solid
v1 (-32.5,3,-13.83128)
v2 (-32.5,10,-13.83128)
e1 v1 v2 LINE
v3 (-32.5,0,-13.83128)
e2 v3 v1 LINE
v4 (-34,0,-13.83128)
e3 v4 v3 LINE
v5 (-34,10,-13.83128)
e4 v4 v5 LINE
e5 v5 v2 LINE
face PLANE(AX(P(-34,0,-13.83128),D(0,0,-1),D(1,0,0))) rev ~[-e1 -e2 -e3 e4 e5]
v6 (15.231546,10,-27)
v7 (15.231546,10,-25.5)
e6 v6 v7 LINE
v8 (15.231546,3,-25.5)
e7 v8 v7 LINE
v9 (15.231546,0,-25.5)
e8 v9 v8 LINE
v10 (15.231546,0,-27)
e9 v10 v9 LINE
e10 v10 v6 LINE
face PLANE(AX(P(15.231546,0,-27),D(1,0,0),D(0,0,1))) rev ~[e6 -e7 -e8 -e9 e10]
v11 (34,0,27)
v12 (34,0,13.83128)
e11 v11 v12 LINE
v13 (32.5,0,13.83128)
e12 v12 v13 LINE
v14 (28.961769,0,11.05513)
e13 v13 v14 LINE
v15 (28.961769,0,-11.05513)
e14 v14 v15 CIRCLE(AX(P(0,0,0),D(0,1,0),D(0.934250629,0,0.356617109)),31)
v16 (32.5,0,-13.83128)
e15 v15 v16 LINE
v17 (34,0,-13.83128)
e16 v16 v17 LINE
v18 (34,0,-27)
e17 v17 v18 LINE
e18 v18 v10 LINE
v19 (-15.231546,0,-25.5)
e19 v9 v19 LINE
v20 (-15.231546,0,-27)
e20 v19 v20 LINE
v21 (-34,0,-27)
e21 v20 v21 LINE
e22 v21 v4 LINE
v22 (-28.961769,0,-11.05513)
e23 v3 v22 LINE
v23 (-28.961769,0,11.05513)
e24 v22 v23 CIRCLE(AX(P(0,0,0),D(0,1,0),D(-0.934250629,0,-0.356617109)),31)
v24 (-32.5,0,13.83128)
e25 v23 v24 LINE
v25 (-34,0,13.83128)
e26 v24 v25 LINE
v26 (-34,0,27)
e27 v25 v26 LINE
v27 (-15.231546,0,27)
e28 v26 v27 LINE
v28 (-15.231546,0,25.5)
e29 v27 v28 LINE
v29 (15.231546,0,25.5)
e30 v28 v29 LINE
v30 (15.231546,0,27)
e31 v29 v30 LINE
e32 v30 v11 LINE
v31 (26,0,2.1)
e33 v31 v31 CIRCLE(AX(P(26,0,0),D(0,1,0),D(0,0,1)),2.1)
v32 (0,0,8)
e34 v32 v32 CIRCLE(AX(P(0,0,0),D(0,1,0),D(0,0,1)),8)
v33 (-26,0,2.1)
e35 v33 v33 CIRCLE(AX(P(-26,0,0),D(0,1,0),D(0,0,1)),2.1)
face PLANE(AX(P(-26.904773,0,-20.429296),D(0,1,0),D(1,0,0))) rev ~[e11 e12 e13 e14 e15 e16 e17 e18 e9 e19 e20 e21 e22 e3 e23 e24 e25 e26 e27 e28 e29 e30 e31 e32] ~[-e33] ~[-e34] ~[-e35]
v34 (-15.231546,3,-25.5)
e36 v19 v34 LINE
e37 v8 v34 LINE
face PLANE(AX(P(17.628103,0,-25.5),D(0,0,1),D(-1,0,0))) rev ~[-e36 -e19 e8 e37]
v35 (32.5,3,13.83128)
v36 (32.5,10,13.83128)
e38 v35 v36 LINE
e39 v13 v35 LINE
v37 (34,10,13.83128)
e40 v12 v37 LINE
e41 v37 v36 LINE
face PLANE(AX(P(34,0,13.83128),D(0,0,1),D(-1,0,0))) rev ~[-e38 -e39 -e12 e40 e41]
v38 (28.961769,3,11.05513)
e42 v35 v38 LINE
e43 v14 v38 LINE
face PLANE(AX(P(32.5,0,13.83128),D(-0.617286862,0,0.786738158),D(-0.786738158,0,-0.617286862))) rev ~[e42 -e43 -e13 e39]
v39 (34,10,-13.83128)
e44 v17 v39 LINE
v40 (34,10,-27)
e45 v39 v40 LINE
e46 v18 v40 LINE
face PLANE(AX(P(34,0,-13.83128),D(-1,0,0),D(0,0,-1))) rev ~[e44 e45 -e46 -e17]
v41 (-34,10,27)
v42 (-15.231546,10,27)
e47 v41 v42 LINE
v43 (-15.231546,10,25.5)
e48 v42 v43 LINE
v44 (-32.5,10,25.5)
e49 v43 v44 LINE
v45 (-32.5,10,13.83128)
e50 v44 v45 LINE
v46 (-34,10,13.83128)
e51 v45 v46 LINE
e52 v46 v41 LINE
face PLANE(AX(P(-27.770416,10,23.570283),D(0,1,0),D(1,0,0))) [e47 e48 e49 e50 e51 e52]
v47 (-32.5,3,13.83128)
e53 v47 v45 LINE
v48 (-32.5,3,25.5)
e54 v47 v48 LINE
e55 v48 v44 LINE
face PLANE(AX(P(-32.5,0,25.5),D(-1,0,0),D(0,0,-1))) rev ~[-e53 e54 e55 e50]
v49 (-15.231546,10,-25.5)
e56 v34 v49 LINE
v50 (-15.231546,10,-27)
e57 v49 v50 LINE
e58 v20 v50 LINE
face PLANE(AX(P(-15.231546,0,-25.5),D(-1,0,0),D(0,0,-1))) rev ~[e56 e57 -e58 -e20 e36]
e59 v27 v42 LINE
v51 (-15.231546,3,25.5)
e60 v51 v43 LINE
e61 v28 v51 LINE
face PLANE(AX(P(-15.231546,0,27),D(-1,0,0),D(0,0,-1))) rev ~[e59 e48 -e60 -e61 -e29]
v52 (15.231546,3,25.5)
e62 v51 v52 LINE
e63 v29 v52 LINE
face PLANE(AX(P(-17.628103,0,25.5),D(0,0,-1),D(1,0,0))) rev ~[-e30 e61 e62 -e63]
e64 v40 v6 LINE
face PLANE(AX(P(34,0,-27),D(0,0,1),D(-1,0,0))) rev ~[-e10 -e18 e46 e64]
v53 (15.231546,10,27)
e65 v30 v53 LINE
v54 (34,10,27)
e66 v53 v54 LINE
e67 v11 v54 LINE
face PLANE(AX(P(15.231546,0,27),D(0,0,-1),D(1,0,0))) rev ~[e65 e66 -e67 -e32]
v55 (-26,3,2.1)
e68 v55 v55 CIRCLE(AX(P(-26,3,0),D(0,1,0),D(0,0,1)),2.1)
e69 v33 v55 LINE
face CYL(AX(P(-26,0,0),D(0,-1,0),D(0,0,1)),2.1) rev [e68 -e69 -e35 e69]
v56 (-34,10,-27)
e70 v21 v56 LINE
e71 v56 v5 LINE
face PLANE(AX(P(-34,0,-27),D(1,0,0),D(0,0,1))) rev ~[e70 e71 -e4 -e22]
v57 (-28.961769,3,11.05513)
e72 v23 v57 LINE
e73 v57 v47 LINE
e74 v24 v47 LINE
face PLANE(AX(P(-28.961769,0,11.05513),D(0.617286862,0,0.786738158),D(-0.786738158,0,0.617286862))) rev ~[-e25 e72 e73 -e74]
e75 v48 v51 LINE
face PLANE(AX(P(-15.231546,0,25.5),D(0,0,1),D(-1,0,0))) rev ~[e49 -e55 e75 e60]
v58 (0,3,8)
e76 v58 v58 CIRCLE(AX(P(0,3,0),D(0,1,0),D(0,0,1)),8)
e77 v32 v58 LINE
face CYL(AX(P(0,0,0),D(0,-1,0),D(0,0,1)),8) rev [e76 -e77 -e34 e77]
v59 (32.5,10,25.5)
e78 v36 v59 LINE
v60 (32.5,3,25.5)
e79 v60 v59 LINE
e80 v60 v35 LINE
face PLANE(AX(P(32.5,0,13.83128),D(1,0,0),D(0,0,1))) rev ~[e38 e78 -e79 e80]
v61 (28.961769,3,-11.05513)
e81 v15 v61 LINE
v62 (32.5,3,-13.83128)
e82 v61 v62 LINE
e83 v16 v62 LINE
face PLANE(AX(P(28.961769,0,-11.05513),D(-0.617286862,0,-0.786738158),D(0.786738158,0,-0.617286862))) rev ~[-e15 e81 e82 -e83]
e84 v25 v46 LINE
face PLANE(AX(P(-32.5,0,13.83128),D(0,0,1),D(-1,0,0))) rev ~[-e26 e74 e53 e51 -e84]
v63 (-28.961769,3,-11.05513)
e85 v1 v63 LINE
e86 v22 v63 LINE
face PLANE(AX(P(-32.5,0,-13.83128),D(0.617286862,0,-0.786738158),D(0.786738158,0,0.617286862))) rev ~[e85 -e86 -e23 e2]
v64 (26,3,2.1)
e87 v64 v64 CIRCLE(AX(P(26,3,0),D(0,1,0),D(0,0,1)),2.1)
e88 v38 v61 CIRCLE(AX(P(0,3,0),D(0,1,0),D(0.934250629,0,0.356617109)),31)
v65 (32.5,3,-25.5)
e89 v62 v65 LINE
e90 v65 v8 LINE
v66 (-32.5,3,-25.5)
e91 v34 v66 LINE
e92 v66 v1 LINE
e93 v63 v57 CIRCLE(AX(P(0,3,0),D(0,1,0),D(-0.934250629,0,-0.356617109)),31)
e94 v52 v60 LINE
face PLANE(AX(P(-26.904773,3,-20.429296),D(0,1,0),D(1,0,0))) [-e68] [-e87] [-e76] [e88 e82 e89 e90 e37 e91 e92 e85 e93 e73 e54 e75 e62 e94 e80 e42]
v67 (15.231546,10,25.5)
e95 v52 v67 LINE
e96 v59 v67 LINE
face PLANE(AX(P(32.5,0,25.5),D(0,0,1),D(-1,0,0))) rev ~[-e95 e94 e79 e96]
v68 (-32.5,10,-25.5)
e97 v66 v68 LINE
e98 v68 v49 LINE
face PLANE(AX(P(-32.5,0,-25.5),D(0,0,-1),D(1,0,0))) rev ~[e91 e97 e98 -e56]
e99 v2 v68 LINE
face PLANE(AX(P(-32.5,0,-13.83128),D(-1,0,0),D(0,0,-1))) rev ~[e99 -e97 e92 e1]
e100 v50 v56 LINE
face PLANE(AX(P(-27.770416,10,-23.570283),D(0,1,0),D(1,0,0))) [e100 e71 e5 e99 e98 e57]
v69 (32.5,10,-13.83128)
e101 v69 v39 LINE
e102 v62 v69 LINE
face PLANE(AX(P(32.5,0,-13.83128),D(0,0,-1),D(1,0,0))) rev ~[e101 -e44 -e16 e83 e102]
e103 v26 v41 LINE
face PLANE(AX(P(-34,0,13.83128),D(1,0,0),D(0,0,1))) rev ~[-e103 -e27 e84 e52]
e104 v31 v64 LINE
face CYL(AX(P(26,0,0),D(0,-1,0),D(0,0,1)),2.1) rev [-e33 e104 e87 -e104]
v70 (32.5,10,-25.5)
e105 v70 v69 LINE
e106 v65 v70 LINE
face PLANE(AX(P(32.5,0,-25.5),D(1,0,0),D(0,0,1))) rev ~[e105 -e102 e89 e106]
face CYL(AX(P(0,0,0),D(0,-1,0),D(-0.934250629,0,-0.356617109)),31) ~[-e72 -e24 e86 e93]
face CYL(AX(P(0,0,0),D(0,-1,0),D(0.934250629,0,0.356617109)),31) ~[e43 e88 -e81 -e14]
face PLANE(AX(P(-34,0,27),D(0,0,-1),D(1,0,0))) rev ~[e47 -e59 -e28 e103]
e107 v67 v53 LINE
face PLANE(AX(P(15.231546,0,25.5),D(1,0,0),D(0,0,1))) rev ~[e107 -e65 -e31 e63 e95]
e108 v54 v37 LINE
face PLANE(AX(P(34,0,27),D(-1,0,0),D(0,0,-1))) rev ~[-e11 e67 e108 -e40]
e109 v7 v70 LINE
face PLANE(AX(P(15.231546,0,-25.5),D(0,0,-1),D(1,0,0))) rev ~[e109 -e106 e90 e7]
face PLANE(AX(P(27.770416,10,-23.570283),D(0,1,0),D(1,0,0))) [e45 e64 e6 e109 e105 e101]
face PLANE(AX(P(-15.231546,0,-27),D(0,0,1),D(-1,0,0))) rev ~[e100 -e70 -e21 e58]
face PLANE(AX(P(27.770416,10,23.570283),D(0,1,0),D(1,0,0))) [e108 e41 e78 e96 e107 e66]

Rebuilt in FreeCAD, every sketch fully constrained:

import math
import FreeCAD as App
import Part
import Sketcher
from FreeCAD import Vector
Q = App.Units.Quantity


def add_polygon(sketch, points):
    """Adds a closed chain of lines whose ends are joined by coincident constraints."""
    first, n = sketch.GeometryCount, len(points)
    for a, b in zip(points, points[1:] + points[:1]):
        sketch.addGeometry(Part.LineSegment(App.Vector(*a, 0), App.Vector(*b, 0)), False)
    for i in range(n):
        sketch.addConstraint(Sketcher.Constraint("Coincident", first + i, 2, first + (i + 1) % n, 1))

doc = App.newDocument("Part")
body = doc.addObject("PartDesign::Body", "Body")

# Sketch on XZ plane
sketch1 = body.newObject("Sketcher::SketchObject", "Sketch")
sketch1.AttachmentSupport = (doc.getObject("XZ_Plane"), [""])
sketch1.MapMode = "FlatFace"
add_polygon(sketch1, [(-15.2, 27), (-15.2, 25.5), (-32.5, 25.5), (-32.5, 13.8), (-34, 13.8), (-34, 27)])  # lines 0-5
sketch1.addConstraint(Sketcher.Constraint("Vertical", 0))
sketch1.addConstraint(Sketcher.Constraint("Horizontal", 1))
sketch1.addConstraint(Sketcher.Constraint("Vertical", 2))
sketch1.addConstraint(Sketcher.Constraint("Horizontal", 3))
sketch1.addConstraint(Sketcher.Constraint("Vertical", 4))
sketch1.addConstraint(Sketcher.Constraint("Horizontal", 5))
sketch1.addConstraint(Sketcher.Constraint("Equal", 3, 0))
sketch1.addConstraint(Sketcher.Constraint("DistanceX", 3, 2, 3, 1, Q("1.5 mm")))
sketch1.addConstraint(Sketcher.Constraint("DistanceX", 3, 2, -1, 1, Q("34 mm")))
sketch1.addConstraint(Sketcher.Constraint("DistanceY", -1, 1, 4, 2, Q("27 mm")))
sketch1.addConstraint(Sketcher.Constraint("DistanceY", 2, 2, 2, 1, Q("11.66872 mm")))
sketch1.addConstraint(Sketcher.Constraint("DistanceX", 1, 2, 1, 1, Q("17.268454 mm")))
pad1 = body.newObject("PartDesign::Pad", "Pad")
pad1.Profile = sketch1
pad1.Length = 10
pad1.Reversed = True
body2 = doc.addObject("PartDesign::Body", "Body001")

# Sketch on XZ plane
sketch2 = body2.newObject("Sketcher::SketchObject", "Sketch001")
sketch2.AttachmentSupport = (doc.getObject("XZ_Plane001"), [""])
sketch2.MapMode = "FlatFace"
add_polygon(sketch2, [(32.5, 13.8), (32.5, 25.5), (15.2, 25.5), (15.2, 27), (34, 27), (34, 13.8)])  # lines 0-5
sketch2.addConstraint(Sketcher.Constraint("Vertical", 0))
sketch2.addConstraint(Sketcher.Constraint("Horizontal", 1))
sketch2.addConstraint(Sketcher.Constraint("Vertical", 2))
sketch2.addConstraint(Sketcher.Constraint("Horizontal", 3))
sketch2.addConstraint(Sketcher.Constraint("Vertical", 4))
sketch2.addConstraint(Sketcher.Constraint("Horizontal", 5))
sketch2.addConstraint(Sketcher.Constraint("Equal", 5, 2))
sketch2.addConstraint(Sketcher.Constraint("DistanceX", 5, 2, 5, 1, Q("1.5 mm")))
sketch2.addConstraint(Sketcher.Constraint("DistanceY", -1, 1, 2, 2, Q("27 mm")))
sketch2.addConstraint(Sketcher.Constraint("DistanceX", -1, 1, 3, 2, Q("34 mm")))
sketch2.addConstraint(Sketcher.Constraint("DistanceY", 0, 1, 0, 2, Q("11.66872 mm")))
sketch2.addConstraint(Sketcher.Constraint("DistanceX", 1, 2, 1, 1, Q("17.268454 mm")))
pad2 = body2.newObject("PartDesign::Pad", "Pad001")
pad2.Profile = sketch2
pad2.Length = 10
pad2.Reversed = True
body3 = doc.addObject("PartDesign::Body", "Body002")

# Sketch on XZ plane
sketch3 = body3.newObject("Sketcher::SketchObject", "Sketch002")
sketch3.AttachmentSupport = (doc.getObject("XZ_Plane002"), [""])
sketch3.MapMode = "FlatFace"
add_polygon(sketch3, [(32.5, -25.5), (32.5, -13.8), (34, -13.8), (34, -27), (15.2, -27), (15.2, -25.5)])  # lines 0-5
sketch3.addConstraint(Sketcher.Constraint("Vertical", 0))
sketch3.addConstraint(Sketcher.Constraint("Horizontal", 1))
sketch3.addConstraint(Sketcher.Constraint("Vertical", 2))
sketch3.addConstraint(Sketcher.Constraint("Horizontal", 3))
sketch3.addConstraint(Sketcher.Constraint("Vertical", 4))
sketch3.addConstraint(Sketcher.Constraint("Horizontal", 5))
sketch3.addConstraint(Sketcher.Constraint("Equal", 1, 4))
sketch3.addConstraint(Sketcher.Constraint("DistanceX", 1, 1, 1, 2, Q("1.5 mm")))
sketch3.addConstraint(Sketcher.Constraint("DistanceX", -1, 1, 1, 2, Q("34 mm")))
sketch3.addConstraint(Sketcher.Constraint("DistanceY", 2, 2, -1, 1, Q("27 mm")))
sketch3.addConstraint(Sketcher.Constraint("DistanceY", 0, 1, 0, 2, Q("11.66872 mm")))
sketch3.addConstraint(Sketcher.Constraint("DistanceX", 3, 2, 3, 1, Q("18.768454 mm")))
pad3 = body3.newObject("PartDesign::Pad", "Pad002")
pad3.Profile = sketch3
pad3.Length = 10
pad3.Reversed = True
body4 = doc.addObject("PartDesign::Body", "Body003")

# Sketch on XZ plane
sketch4 = body4.newObject("Sketcher::SketchObject", "Sketch003")
sketch4.AttachmentSupport = (doc.getObject("XZ_Plane003"), [""])
sketch4.MapMode = "FlatFace"
add_polygon(sketch4, [(-15.2, -25.5), (-15.2, -27), (-34, -27), (-34, -13.8), (-32.5, -13.8), (-32.5, -25.5)])  # lines 0-5
sketch4.addConstraint(Sketcher.Constraint("Vertical", 0))
sketch4.addConstraint(Sketcher.Constraint("Horizontal", 1))
sketch4.addConstraint(Sketcher.Constraint("Vertical", 2))
sketch4.addConstraint(Sketcher.Constraint("Horizontal", 3))
sketch4.addConstraint(Sketcher.Constraint("Vertical", 4))
sketch4.addConstraint(Sketcher.Constraint("Horizontal", 5))
sketch4.addConstraint(Sketcher.Constraint("Equal", 3, 0))
sketch4.addConstraint(Sketcher.Constraint("DistanceX", 3, 1, 3, 2, Q("1.5 mm")))
sketch4.addConstraint(Sketcher.Constraint("DistanceY", 0, 2, -1, 1, Q("27 mm")))
sketch4.addConstraint(Sketcher.Constraint("DistanceX", 1, 2, -1, 1, Q("34 mm")))
sketch4.addConstraint(Sketcher.Constraint("DistanceY", 2, 1, 2, 2, Q("13.16872 mm")))
sketch4.addConstraint(Sketcher.Constraint("DistanceX", 1, 2, 1, 1, Q("18.768454 mm")))
pad4 = body4.newObject("PartDesign::Pad", "Pad003")
pad4.Profile = sketch4
pad4.Length = 10
pad4.Reversed = True
body.AllowCompound = True
doc.recompute()

boolean = body.newObject("PartDesign::Boolean", "Boolean")
boolean.Type = "Fuse"
boolean.addObjects([body2])
doc.recompute()

boolean2 = body.newObject("PartDesign::Boolean", "Boolean001")
boolean2.Type = "Fuse"
boolean2.addObjects([body3])
doc.recompute()

boolean3 = body.newObject("PartDesign::Boolean", "Boolean002")
boolean3.Type = "Fuse"
boolean3.addObjects([body4])

# Sketch on XZ plane
sketch5 = body.newObject("Sketcher::SketchObject", "Sketch004")
sketch5.AttachmentSupport = (doc.getObject("XZ_Plane"), [""])
sketch5.MapMode = "FlatFace"
sketch5.addGeometry(Part.LineSegment(Vector(-32.5, -25.5, 0), Vector(-32.5, -13.8, 0)), False)
sketch5.addGeometry(Part.LineSegment(Vector(-32.5, -13.8, 0), Vector(-29, -11.1, 0)), False)
sketch5.addGeometry(Part.ArcOfCircle(Part.Circle(Vector(0, 0, 0), Vector(0, 0, 1), 31), math.radians(159), math.radians(201)), False)
sketch5.addGeometry(Part.LineSegment(Vector(-29, 11.1, 0), Vector(-32.5, 13.8, 0)), False)
sketch5.addGeometry(Part.LineSegment(Vector(-32.5, 13.8, 0), Vector(-32.5, 25.5, 0)), False)
sketch5.addGeometry(Part.LineSegment(Vector(-32.5, 25.5, 0), Vector(32.5, 25.5, 0)), False)
sketch5.addGeometry(Part.LineSegment(Vector(32.5, 25.5, 0), Vector(32.5, 13.8, 0)), False)
sketch5.addGeometry(Part.LineSegment(Vector(32.5, 13.8, 0), Vector(29, 11.1, 0)), False)
sketch5.addGeometry(Part.ArcOfCircle(Part.Circle(Vector(0, 0, 0), Vector(0, 0, 1), 31), math.radians(-21), math.radians(21)), False)
sketch5.addGeometry(Part.LineSegment(Vector(29, -11.1, 0), Vector(32.5, -13.8, 0)), False)
sketch5.addGeometry(Part.LineSegment(Vector(32.5, -13.8, 0), Vector(32.5, -25.5, 0)), False)
sketch5.addGeometry(Part.LineSegment(Vector(32.5, -25.5, 0), Vector(-32.5, -25.5, 0)), False)
sketch5.addGeometry(Part.Circle(Vector(-26, 0, 0), Vector(0, 0, 1), 2.1), False)
sketch5.addGeometry(Part.Circle(Vector(0, 0, 0), Vector(0, 0, 1), 8), False)
sketch5.addGeometry(Part.Circle(Vector(26, 0, 0), Vector(0, 0, 1), 2.1), False)
sketch5.addConstraint(Sketcher.Constraint("Coincident", 0, 2, 1, 1))
sketch5.addConstraint(Sketcher.Constraint("Coincident", 1, 2, 2, 2))
sketch5.addConstraint(Sketcher.Constraint("Coincident", 2, 1, 3, 1))
sketch5.addConstraint(Sketcher.Constraint("Coincident", 3, 2, 4, 1))
sketch5.addConstraint(Sketcher.Constraint("Coincident", 4, 2, 5, 1))
sketch5.addConstraint(Sketcher.Constraint("Coincident", 5, 2, 6, 1))
sketch5.addConstraint(Sketcher.Constraint("Coincident", 6, 2, 7, 1))
sketch5.addConstraint(Sketcher.Constraint("Coincident", 7, 2, 8, 2))
sketch5.addConstraint(Sketcher.Constraint("Coincident", 8, 1, 9, 1))
sketch5.addConstraint(Sketcher.Constraint("Coincident", 9, 2, 10, 1))
sketch5.addConstraint(Sketcher.Constraint("Coincident", 10, 2, 11, 1))
sketch5.addConstraint(Sketcher.Constraint("Coincident", 11, 2, 0, 1))
sketch5.addConstraint(Sketcher.Constraint("Vertical", 0))
sketch5.addConstraint(Sketcher.Constraint("Vertical", 4))
sketch5.addConstraint(Sketcher.Constraint("Horizontal", 5))
sketch5.addConstraint(Sketcher.Constraint("Vertical", 6))
sketch5.addConstraint(Sketcher.Constraint("Vertical", 10))
sketch5.addConstraint(Sketcher.Constraint("Horizontal", 11))
sketch5.addConstraint(Sketcher.Constraint("Coincident", 2, 3, -1, 1))
sketch5.addConstraint(Sketcher.Constraint("Coincident", 8, 3, -1, 1))
sketch5.addConstraint(Sketcher.Constraint("Coincident", 13, 3, -1, 1))
sketch5.addConstraint(Sketcher.Constraint("Equal", 2, 8))
sketch5.addConstraint(Sketcher.Constraint("Equal", 12, 14))
sketch5.addConstraint(Sketcher.Constraint("Symmetric", 12, 3, 14, 3, -1, 1))
sketch5.addConstraint(Sketcher.Constraint("Symmetric", 0, 2, 6, 2, -1, 1))
sketch5.addConstraint(Sketcher.Constraint("Symmetric", 3, 2, 9, 2, -1, 1))
sketch5.addConstraint(Sketcher.Constraint("Symmetric", 3, 2, 6, 2, -2))
sketch5.addConstraint(Sketcher.Constraint("PointOnObject", 12, 3, -1))
sketch5.addConstraint(Sketcher.Constraint("Parallel", 1, 7))
sketch5.addConstraint(Sketcher.Constraint("Parallel", 3, 9))
sketch5.addConstraint(Sketcher.Constraint("Horizontal", 2, 1, 7, 2))
sketch5.addConstraint(Sketcher.Constraint("Equal", 0, 4))
sketch5.addConstraint(Sketcher.Constraint("Diameter", 13, Q("16 mm")))
sketch5.addConstraint(Sketcher.Constraint("Radius", 2, Q("31 mm")))
sketch5.addConstraint(Sketcher.Constraint("Diameter", 12, Q("4.2 mm")))
sketch5.addConstraint(Sketcher.Constraint("DistanceX", 5, 1, 5, 2, Q("65 mm")))
sketch5.addConstraint(Sketcher.Constraint("DistanceX", 12, 3, -1, 1, Q("26 mm")))
sketch5.addConstraint(Sketcher.Constraint("DistanceY", -1, 1, 4, 2, Q("25.5 mm")))
sketch5.addConstraint(Sketcher.Constraint("DistanceY", 0, 1, 0, 2, Q("11.66872 mm")))
sketch5.addConstraint(Sketcher.Constraint("Distance", 1, Q("4.497342 mm")))
pad5 = body.newObject("PartDesign::Pad", "Pad004")
pad5.Profile = sketch5
pad5.Length = 3
pad5.Reversed = True

doc.recompute()
